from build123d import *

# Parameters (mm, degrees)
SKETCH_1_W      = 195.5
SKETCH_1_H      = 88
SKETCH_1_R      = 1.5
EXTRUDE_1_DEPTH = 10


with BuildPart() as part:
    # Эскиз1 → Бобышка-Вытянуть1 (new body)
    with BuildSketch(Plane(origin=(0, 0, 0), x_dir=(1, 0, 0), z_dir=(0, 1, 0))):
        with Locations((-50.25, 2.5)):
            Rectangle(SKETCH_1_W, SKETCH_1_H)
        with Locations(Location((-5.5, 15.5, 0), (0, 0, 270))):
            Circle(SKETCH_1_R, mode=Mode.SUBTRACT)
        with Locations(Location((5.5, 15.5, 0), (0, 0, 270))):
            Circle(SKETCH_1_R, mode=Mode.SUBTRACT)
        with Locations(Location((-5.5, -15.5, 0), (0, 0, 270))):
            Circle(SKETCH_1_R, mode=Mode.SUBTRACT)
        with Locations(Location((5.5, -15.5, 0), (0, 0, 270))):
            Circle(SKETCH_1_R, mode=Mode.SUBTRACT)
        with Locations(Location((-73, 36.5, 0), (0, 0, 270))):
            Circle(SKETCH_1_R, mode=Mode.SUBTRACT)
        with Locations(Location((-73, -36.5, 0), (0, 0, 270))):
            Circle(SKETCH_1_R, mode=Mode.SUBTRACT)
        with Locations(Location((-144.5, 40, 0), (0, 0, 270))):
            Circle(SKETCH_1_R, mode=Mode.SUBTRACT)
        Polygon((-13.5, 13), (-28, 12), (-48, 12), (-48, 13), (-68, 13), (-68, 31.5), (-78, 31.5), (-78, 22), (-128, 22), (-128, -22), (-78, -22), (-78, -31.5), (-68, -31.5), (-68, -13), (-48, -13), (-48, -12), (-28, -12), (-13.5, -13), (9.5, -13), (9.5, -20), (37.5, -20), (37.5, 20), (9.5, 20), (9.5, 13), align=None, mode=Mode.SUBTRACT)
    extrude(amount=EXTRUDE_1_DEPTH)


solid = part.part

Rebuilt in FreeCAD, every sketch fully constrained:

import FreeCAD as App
import Part
import Sketcher

V = App.Vector

doc = App.newDocument("Part")
params = doc.addObject("Spreadsheet::Sheet", "Params")
for row, (alias, value) in enumerate([
    ("sketch1_diameter", "3 mm"),
    ("sketch1_width", "23 mm"),
    ("sketch1_width2", "28 mm"),
    ("sketch1_width3", "20 mm"),
    ("sketch1_width4", "10 mm"),
    ("pad1_length", "10 mm"),
], start=1):
    params.set(f"A{row}", alias)
    params.set(f"B{row}", "=" + value)
    params.setAlias(f"B{row}", alias)

body = doc.addObject("PartDesign::Body", "Body")

# Sketch on XZ plane
sketch1 = body.newObject("Sketcher::SketchObject", "Sketch")
sketch1.AttachmentSupport = (doc.getObject("XZ_Plane"), [""])
sketch1.MapMode = "FlatFace"
sketch1.addGeometry([
    Part.LineSegment(V(-148, -46.5, 0), V(-148, 41.5, 0)),  # 0
    Part.LineSegment(V(-148, 41.5, 0), V(47.5, 41.5, 0)),  # 1
    Part.LineSegment(V(47.5, 41.5, 0), V(47.5, -46.5, 0)),  # 2
    Part.LineSegment(V(47.5, -46.5, 0), V(-148, -46.5, 0)),  # 3
    Part.Circle(V(-73, 36.5, 0), V(0, 0, 1), 1.5),  # 4
    Part.LineSegment(V(-28, -12, 0), V(-13.5, -13, 0)),  # 5
    Part.LineSegment(V(-13.5, -13, 0), V(9.5, -13, 0)),  # 6
    Part.LineSegment(V(9.5, -13, 0), V(9.5, -20, 0)),  # 7
    Part.LineSegment(V(9.5, -20, 0), V(37.5, -20, 0)),  # 8
    Part.LineSegment(V(37.5, -20, 0), V(37.5, 20, 0)),  # 9
    Part.LineSegment(V(37.5, 20, 0), V(9.5, 20, 0)),  # 10
    Part.LineSegment(V(9.5, 20, 0), V(9.5, 13, 0)),  # 11
    Part.LineSegment(V(9.5, 13, 0), V(-13.5, 13, 0)),  # 12
    Part.LineSegment(V(-13.5, 13, 0), V(-28, 12, 0)),  # 13
    Part.LineSegment(V(-28, 12, 0), V(-48, 12, 0)),  # 14
    Part.LineSegment(V(-48, 12, 0), V(-48, 13, 0)),  # 15
    Part.LineSegment(V(-48, 13, 0), V(-68, 13, 0)),  # 16
    Part.LineSegment(V(-68, 13, 0), V(-68, 31.5, 0)),  # 17
    Part.LineSegment(V(-68, 31.5, 0), V(-78, 31.5, 0)),  # 18
    Part.LineSegment(V(-78, 31.5, 0), V(-78, 22, 0)),  # 19
    Part.LineSegment(V(-78, 22, 0), V(-128, 22, 0)),  # 20
    Part.LineSegment(V(-128, 22, 0), V(-128, -22, 0)),  # 21
    Part.LineSegment(V(-128, -22, 0), V(-78, -22, 0)),  # 22
    Part.LineSegment(V(-78, -22, 0), V(-78, -31.5, 0)),  # 23
    Part.LineSegment(V(-78, -31.5, 0), V(-68, -31.5, 0)),  # 24
    Part.LineSegment(V(-68, -31.5, 0), V(-68, -13, 0)),  # 25
    Part.LineSegment(V(-68, -13, 0), V(-48, -13, 0)),  # 26
    Part.LineSegment(V(-48, -13, 0), V(-48, -12, 0)),  # 27
    Part.LineSegment(V(-48, -12, 0), V(-28, -12, 0)),  # 28
    Part.Circle(V(-5.5, 15.5, 0), V(0, 0, 1), 1.5),  # 29
    Part.Circle(V(5.5, 15.5, 0), V(0, 0, 1), 1.5),  # 30
    Part.Circle(V(-144.5, -40, 0), V(0, 0, 1), 1.5),  # 31
    Part.Circle(V(-73, -36.5, 0), V(0, 0, 1), 1.5),  # 32
    Part.Circle(V(-5.5, -15.5, 0), V(0, 0, 1), 1.5),  # 33
    Part.Circle(V(5.5, -15.5, 0), V(0, 0, 1), 1.5),  # 34
], False)
sketch1.addConstraint([
    Sketcher.Constraint("Coincident", 0, 2, 1, 1),
    Sketcher.Constraint("Coincident", 1, 2, 2, 1),
    Sketcher.Constraint("Coincident", 2, 2, 3, 1),
    Sketcher.Constraint("Coincident", 3, 2, 0, 1),
    Sketcher.Constraint("Coincident", 5, 2, 6, 1),
    Sketcher.Constraint("Coincident", 6, 2, 7, 1),
    Sketcher.Constraint("Coincident", 7, 2, 8, 1),
    Sketcher.Constraint("Coincident", 8, 2, 9, 1),
    Sketcher.Constraint("Coincident", 9, 2, 10, 1),
    Sketcher.Constraint("Coincident", 10, 2, 11, 1),
    Sketcher.Constraint("Coincident", 11, 2, 12, 1),
    Sketcher.Constraint("Coincident", 12, 2, 13, 1),
    Sketcher.Constraint("Coincident", 13, 2, 14, 1),
    Sketcher.Constraint("Coincident", 14, 2, 15, 1),
    Sketcher.Constraint("Coincident", 15, 2, 16, 1),
    Sketcher.Constraint("Coincident", 16, 2, 17, 1),
    Sketcher.Constraint("Coincident", 17, 2, 18, 1),
    Sketcher.Constraint("Coincident", 18, 2, 19, 1),
    Sketcher.Constraint("Coincident", 19, 2, 20, 1),
    Sketcher.Constraint("Coincident", 20, 2, 21, 1),
    Sketcher.Constraint("Coincident", 21, 2, 22, 1),
    Sketcher.Constraint("Coincident", 22, 2, 23, 1),
    Sketcher.Constraint("Coincident", 23, 2, 24, 1),
    Sketcher.Constraint("Coincident", 24, 2, 25, 1),
    Sketcher.Constraint("Coincident", 25, 2, 26, 1),
    Sketcher.Constraint("Coincident", 26, 2, 27, 1),
    Sketcher.Constraint("Coincident", 27, 2, 28, 1),
    Sketcher.Constraint("Coincident", 28, 2, 5, 1),
    Sketcher.Constraint("Vertical", 0),
    Sketcher.Constraint("Horizontal", 1),
    Sketcher.Constraint("Vertical", 2),
    Sketcher.Constraint("Horizontal", 3),
    Sketcher.Constraint("Horizontal", 6),
    Sketcher.Constraint("Vertical", 7),
    Sketcher.Constraint("Horizontal", 8),
    Sketcher.Constraint("Vertical", 9),
    Sketcher.Constraint("Horizontal", 10),
    Sketcher.Constraint("Vertical", 11),
    Sketcher.Constraint("Horizontal", 12),
    Sketcher.Constraint("Horizontal", 14),
    Sketcher.Constraint("Vertical", 15),
    Sketcher.Constraint("Horizontal", 16),
    Sketcher.Constraint("Vertical", 17),
    Sketcher.Constraint("Horizontal", 18),
    Sketcher.Constraint("Vertical", 19),
    Sketcher.Constraint("Horizontal", 20),
    Sketcher.Constraint("Vertical", 21),
    Sketcher.Constraint("Horizontal", 22),
    Sketcher.Constraint("Vertical", 23),
    Sketcher.Constraint("Horizontal", 24),
    Sketcher.Constraint("Vertical", 25),
    Sketcher.Constraint("Horizontal", 26),
    Sketcher.Constraint("Vertical", 27),
    Sketcher.Constraint("Horizontal", 28),
    Sketcher.Constraint("Equal", 4, 29),
    Sketcher.Constraint("Equal", 29, 30),
    Sketcher.Constraint("Equal", 30, 31),
    Sketcher.Constraint("Equal", 31, 32),
    Sketcher.Constraint("Equal", 32, 33),
    Sketcher.Constraint("Equal", 33, 34),
    Sketcher.Constraint("Symmetric", 30, 3, 33, 3, -1, 1),
    Sketcher.Constraint("Symmetric", 29, 3, 34, 3, -1, 1),
    Sketcher.Constraint("Symmetric", 29, 3, 30, 3, -2),
    Sketcher.Constraint("Symmetric", 4, 3, 32, 3, -1),
    Sketcher.Constraint("Symmetric", 7, 2, 10, 2, -1),
    Sketcher.Constraint("Symmetric", 5, 2, 12, 2, -1),
    Sketcher.Constraint("Symmetric", 19, 2, 22, 2, -1),
    Sketcher.Constraint("Symmetric", 17, 2, 24, 2, -1),
    Sketcher.Constraint("Symmetric", 15, 2, 26, 2, -1),
    Sketcher.Constraint("Symmetric", 13, 2, 28, 2, -1),
    Sketcher.Constraint("Horizontal", 12, 2, 15, 2),
    Sketcher.Constraint("Equal", 14, 16),
    Sketcher.Constraint("Diameter", 4, 3.0),
    Sketcher.Constraint("DistanceX", 6, 1, 6, 2, 23.0),
    Sketcher.Constraint("DistanceX", 8, 1, 8, 2, 28.0),
    Sketcher.Constraint("DistanceX", 14, 2, 14, 1, 20.0),
    Sketcher.Constraint("DistanceX", 18, 2, 18, 1, 10.0),
    Sketcher.Constraint("DistanceX", 20, 2, 20, 1, 50.0),
    Sketcher.Constraint("DistanceY", 0, 1, 0, 2, 88.0),
    Sketcher.Constraint("DistanceY", 7, 2, 7, 1, 7.0),
    Sketcher.Constraint("DistanceY", 9, 1, 9, 2, 40.0),
    Sketcher.Constraint("DistanceY", 15, 1, 15, 2, 1.0),
    Sketcher.Constraint("DistanceY", 21, 2, 21, 1, 44.0),
    Sketcher.Constraint("DistanceX", 1, 1, 1, 2, 195.5),
    Sketcher.Constraint("DistanceY", 17, 1, 17, 2, 18.5),
    Sketcher.Constraint("DistanceX", 4, 3, -1, 1, 73.0),
    Sketcher.Constraint("DistanceY", 31, 3, -1, 1, 40.0),
    Sketcher.Constraint("DistanceX", 0, 2, -1, 1, 148.0),
    Sketcher.Constraint("DistanceX", 13, 2, -1, 1, 28.0),
    Sketcher.Constraint("DistanceY", 29, 3, 4, 3, 21.0),
    Sketcher.Constraint("DistanceX", 29, 3, 30, 3, 11.0),
    Sketcher.Constraint("DistanceX", 31, 3, 29, 3, 139.0),
    Sketcher.Constraint("DistanceY", 32, 3, 4, 3, 73.0),
    Sketcher.Constraint("DistanceY", 4, 3, 0, 2, 5.0),
    Sketcher.Constraint("DistanceX", 5, 2, 33, 3, 8.0),
])
sketch1.setExpression("Constraints[72]", "Params.sketch1_diameter")
sketch1.setExpression("Constraints[73]", "Params.sketch1_width")
sketch1.setExpression("Constraints[74]", "Params.sketch1_width2")
sketch1.setExpression("Constraints[75]", "Params.sketch1_width3")
sketch1.setExpression("Constraints[76]", "Params.sketch1_width4")
pad1 = body.newObject("PartDesign::Pad", "Pad")
pad1.Profile = sketch1
pad1.setExpression("Length", "Params.pad1_length")
pad1.Reversed = True

doc.recompute()
